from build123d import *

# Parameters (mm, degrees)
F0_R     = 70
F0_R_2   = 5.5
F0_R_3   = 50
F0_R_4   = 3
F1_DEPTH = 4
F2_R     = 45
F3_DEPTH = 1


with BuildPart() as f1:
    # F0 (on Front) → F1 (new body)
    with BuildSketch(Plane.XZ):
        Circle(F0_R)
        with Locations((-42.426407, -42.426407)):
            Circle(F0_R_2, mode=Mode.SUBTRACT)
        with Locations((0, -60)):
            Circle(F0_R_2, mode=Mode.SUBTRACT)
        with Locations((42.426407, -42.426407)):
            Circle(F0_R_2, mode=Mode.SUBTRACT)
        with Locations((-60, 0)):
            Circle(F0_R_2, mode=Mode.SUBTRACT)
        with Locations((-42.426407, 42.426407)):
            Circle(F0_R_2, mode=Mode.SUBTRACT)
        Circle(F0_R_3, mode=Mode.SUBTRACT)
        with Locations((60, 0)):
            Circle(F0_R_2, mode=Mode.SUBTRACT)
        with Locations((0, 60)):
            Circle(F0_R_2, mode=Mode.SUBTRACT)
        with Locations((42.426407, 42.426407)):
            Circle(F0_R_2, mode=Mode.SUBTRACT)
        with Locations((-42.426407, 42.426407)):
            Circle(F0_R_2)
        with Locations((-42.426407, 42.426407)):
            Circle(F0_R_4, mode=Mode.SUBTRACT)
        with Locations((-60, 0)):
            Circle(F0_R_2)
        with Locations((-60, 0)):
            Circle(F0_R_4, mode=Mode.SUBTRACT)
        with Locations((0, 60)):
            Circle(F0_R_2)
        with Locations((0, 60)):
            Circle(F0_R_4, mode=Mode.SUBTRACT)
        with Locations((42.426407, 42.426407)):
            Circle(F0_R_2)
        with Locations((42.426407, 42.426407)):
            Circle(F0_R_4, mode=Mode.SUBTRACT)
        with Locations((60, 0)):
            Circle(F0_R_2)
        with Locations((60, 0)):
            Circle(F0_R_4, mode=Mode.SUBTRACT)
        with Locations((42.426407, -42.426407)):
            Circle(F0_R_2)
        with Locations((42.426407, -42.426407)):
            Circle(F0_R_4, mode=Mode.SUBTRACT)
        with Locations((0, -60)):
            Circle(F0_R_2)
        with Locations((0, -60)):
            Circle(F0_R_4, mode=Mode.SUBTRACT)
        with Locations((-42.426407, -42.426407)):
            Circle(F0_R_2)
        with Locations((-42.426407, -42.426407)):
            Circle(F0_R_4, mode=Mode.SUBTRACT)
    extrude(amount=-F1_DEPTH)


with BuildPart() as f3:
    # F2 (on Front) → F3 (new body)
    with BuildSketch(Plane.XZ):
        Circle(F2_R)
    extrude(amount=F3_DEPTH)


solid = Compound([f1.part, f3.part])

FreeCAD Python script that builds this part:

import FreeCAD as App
import Part
import Sketcher
from FreeCAD import Vector
Q = App.Units.Quantity

doc = App.newDocument("Part")
body = doc.addObject("PartDesign::Body", "Body")

# Sketch on XZ plane
sketch1 = body.newObject("Sketcher::SketchObject", "Sketch")
sketch1.AttachmentSupport = (doc.getObject("XZ_Plane"), [""])
sketch1.MapMode = "FlatFace"
sketch1.addGeometry(Part.Circle(Vector(0, 0, 0), Vector(0, 0, 1), 70), False)
sketch1.addGeometry(Part.Circle(Vector(-42.4, -42.4, 0), Vector(0, 0, 1), 3), False)
sketch1.addGeometry(Part.Circle(Vector(0, -60, 0), Vector(0, 0, 1), 3), False)
sketch1.addGeometry(Part.Circle(Vector(42.4, -42.4, 0), Vector(0, 0, 1), 3), False)
sketch1.addGeometry(Part.Circle(Vector(-60, 0, 0), Vector(0, 0, 1), 3), False)
sketch1.addGeometry(Part.Circle(Vector(-42.4, 42.4, 0), Vector(0, 0, 1), 3), False)
sketch1.addGeometry(Part.Circle(Vector(0, 0, 0), Vector(0, 0, 1), 50), False)
sketch1.addGeometry(Part.Circle(Vector(60, 0, 0), Vector(0, 0, 1), 3), False)
sketch1.addGeometry(Part.Circle(Vector(0, 60, 0), Vector(0, 0, 1), 3), False)
sketch1.addGeometry(Part.Circle(Vector(42.4, 42.4, 0), Vector(0, 0, 1), 3), False)
sketch1.addConstraint(Sketcher.Constraint("Coincident", 0, 3, -1, 1))
sketch1.addConstraint(Sketcher.Constraint("Coincident", 6, 3, -1, 1))
sketch1.addConstraint(Sketcher.Constraint("Equal", 1, 2))
sketch1.addConstraint(Sketcher.Constraint("Equal", 2, 3))
sketch1.addConstraint(Sketcher.Constraint("Equal", 3, 4))
sketch1.addConstraint(Sketcher.Constraint("Equal", 4, 5))
sketch1.addConstraint(Sketcher.Constraint("Equal", 5, 7))
sketch1.addConstraint(Sketcher.Constraint("Equal", 7, 8))
sketch1.addConstraint(Sketcher.Constraint("Equal", 8, 9))
sketch1.addConstraint(Sketcher.Constraint("Symmetric", 3, 3, 5, 3, -1, 1))
sketch1.addConstraint(Sketcher.Constraint("Symmetric", 4, 3, 7, 3, -1, 1))
sketch1.addConstraint(Sketcher.Constraint("Symmetric", 2, 3, 8, 3, -1, 1))
sketch1.addConstraint(Sketcher.Constraint("Symmetric", 1, 3, 9, 3, -1, 1))
sketch1.addConstraint(Sketcher.Constraint("Symmetric", 1, 3, 3, 3, -2))
sketch1.addConstraint(Sketcher.Constraint("PointOnObject", 2, 3, -2))
sketch1.addConstraint(Sketcher.Constraint("PointOnObject", 4, 3, -1))
sketch1.addConstraint(Sketcher.Constraint("Diameter", 0, Q("140 mm")))
sketch1.addConstraint(Sketcher.Constraint("Diameter", 1, Q("6 mm")))
sketch1.addConstraint(Sketcher.Constraint("Diameter", 6, Q("100 mm")))
sketch1.addConstraint(Sketcher.Constraint("DistanceY", 2, 3, -1, 1, Q("60 mm")))
sketch1.addConstraint(Sketcher.Constraint("DistanceX", 4, 3, -1, 1, Q("60 mm")))
sketch1.addConstraint(Sketcher.Constraint("DistanceX", 1, 3, -1, 1, Q("42.426407 mm")))
sketch1.addConstraint(Sketcher.Constraint("DistanceY", 1, 3, -1, 1, Q("42.426407 mm")))
pad1 = body.newObject("PartDesign::Pad", "Pad")
pad1.Profile = sketch1
pad1.Length = 4
pad1.Reversed = True
body2 = doc.addObject("PartDesign::Body", "Body001")

# Sketch on XZ plane
sketch2 = body2.newObject("Sketcher::SketchObject", "Sketch001")
sketch2.AttachmentSupport = (doc.getObject("XZ_Plane001"), [""])
sketch2.MapMode = "FlatFace"
sketch2.addGeometry(Part.Circle(Vector(0, 0, 0), Vector(0, 0, 1), 45), False)
sketch2.addConstraint(Sketcher.Constraint("Coincident", 0, 3, -1, 1))
sketch2.addConstraint(Sketcher.Constraint("Diameter", 0, Q("90 mm")))
pad2 = body2.newObject("PartDesign::Pad", "Pad001")
pad2.Profile = sketch2
pad2.Length = 1

doc.recompute()
